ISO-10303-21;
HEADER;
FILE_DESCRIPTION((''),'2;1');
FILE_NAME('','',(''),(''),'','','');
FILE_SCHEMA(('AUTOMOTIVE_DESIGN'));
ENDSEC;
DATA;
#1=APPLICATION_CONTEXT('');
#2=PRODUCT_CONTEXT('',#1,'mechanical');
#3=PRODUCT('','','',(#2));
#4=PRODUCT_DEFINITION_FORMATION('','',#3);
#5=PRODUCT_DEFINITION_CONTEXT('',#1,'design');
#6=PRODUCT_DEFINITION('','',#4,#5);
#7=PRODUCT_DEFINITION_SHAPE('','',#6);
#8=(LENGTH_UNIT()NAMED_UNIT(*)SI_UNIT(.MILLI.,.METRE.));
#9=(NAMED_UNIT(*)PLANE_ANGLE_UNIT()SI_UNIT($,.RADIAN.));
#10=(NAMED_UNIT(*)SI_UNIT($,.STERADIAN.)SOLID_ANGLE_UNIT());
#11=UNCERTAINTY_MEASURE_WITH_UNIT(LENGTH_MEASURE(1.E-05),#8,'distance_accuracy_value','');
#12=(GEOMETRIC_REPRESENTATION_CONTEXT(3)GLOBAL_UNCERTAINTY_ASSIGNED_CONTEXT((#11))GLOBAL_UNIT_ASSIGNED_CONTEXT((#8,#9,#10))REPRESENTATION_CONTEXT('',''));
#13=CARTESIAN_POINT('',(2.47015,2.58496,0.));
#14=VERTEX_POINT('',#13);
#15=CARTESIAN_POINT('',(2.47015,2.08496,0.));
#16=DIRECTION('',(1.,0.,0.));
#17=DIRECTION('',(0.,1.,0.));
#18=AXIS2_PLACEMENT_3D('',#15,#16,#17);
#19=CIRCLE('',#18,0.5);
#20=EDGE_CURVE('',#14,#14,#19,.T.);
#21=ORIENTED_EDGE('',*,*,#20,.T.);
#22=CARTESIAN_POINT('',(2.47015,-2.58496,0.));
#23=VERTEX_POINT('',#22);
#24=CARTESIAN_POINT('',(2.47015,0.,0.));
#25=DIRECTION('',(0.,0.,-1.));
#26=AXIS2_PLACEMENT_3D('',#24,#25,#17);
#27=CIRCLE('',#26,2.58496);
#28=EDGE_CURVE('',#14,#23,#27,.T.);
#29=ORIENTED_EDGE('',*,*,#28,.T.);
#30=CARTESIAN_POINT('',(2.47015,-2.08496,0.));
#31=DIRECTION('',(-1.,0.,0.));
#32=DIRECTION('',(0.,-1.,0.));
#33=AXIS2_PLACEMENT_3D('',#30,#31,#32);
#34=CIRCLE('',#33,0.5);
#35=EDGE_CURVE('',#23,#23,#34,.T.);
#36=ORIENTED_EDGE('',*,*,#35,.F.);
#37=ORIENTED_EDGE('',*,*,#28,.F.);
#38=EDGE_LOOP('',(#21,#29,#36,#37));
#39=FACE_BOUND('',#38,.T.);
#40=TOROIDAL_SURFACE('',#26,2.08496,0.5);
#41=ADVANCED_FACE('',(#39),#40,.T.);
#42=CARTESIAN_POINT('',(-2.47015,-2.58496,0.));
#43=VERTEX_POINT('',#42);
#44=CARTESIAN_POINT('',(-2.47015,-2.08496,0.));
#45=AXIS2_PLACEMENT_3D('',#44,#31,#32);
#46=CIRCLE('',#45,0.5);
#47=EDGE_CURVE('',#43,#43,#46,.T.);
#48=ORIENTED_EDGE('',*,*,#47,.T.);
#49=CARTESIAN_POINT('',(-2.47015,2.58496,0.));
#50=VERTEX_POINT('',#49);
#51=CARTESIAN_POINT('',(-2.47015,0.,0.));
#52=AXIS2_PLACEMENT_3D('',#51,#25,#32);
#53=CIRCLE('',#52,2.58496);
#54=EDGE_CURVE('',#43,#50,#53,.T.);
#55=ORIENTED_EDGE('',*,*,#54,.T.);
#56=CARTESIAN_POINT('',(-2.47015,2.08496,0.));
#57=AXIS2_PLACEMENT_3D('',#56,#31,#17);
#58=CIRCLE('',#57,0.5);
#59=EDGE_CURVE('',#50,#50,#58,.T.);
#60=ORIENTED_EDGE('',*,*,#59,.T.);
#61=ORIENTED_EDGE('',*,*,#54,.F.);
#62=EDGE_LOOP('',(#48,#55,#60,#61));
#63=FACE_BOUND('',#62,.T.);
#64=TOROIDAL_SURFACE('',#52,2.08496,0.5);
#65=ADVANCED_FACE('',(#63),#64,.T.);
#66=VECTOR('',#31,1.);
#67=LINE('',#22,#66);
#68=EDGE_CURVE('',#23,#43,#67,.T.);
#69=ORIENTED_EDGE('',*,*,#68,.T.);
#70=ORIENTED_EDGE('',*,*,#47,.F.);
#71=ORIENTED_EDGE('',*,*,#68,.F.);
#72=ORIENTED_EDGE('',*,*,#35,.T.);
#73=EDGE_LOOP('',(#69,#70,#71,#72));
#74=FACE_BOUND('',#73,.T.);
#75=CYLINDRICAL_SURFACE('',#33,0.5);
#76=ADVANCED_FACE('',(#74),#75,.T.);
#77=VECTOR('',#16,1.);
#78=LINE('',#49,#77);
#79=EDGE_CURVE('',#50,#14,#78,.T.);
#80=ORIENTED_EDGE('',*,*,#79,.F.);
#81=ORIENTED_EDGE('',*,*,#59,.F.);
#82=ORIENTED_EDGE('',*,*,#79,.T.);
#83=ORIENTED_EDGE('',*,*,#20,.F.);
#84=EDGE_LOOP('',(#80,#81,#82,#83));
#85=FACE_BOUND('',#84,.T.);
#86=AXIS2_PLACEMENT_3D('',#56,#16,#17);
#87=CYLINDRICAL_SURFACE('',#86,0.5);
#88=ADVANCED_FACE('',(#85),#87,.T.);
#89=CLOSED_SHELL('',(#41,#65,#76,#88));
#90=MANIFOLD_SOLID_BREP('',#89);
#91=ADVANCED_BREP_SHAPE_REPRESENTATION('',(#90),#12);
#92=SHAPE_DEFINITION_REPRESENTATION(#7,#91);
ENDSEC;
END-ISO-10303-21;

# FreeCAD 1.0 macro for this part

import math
import FreeCAD as App
import Part
import Sketcher

doc = App.newDocument("Part")
body = doc.addObject("PartDesign::Body", "Body")

# Sketch on YZ plane
sketch1 = body.newObject("Sketcher::SketchObject", "Sketch")
sketch1.AttachmentSupport = (doc.getObject("YZ_Plane"), [""])
sketch1.MapMode = "FlatFace"
sketch1.AttachmentOffset = App.Placement(App.Vector(0, 0, -2.47015), App.Rotation())
sketch1.addGeometry(Part.Circle(App.Vector(2.1, 0, 0), App.Vector(0, 0, 1), 0.5), False)
sketch1.addConstraint([
    Sketcher.Constraint("PointOnObject", 0, 3, -1),
    Sketcher.Constraint("Diameter", 0, 1.0),
    Sketcher.Constraint("DistanceX", -1, 1, 0, 3, 2.08496),
])

# Sketch on XY plane
sketch2 = body.newObject("Sketcher::SketchObject", "Sketch001")
sketch2.AttachmentSupport = (doc.getObject("XY_Plane"), [""])
sketch2.MapMode = "FlatFace"
sketch2.addGeometry([
    Part.LineSegment(App.Vector(2.5, -2.1, 0), App.Vector(-2.5, -2.1, 0)),
    Part.ArcOfCircle(Part.Circle(App.Vector(-2.5, 0, 0), App.Vector(0, 0, 1), 2.1), math.radians(90), math.radians(270)),
    Part.LineSegment(App.Vector(-2.5, 2.1, 0), App.Vector(2.5, 2.1, 0)),
    Part.ArcOfCircle(Part.Circle(App.Vector(2.5, 0, 0), App.Vector(0, 0, 1), 2.1), math.radians(-90), math.radians(90)),
], False)
sketch2.addConstraint([
    Sketcher.Constraint("Tangent", 0, 2, 1, 2),
    Sketcher.Constraint("Tangent", 1, 1, 2, 1),
    Sketcher.Constraint("Tangent", 2, 2, 3, 2),
    Sketcher.Constraint("Tangent", 3, 1, 0, 1),
    Sketcher.Constraint("Horizontal", 0),
    Sketcher.Constraint("Horizontal", 2),
    Sketcher.Constraint("Symmetric", 1, 3, 3, 3, -1, 1),
    Sketcher.Constraint("Radius", 1, 2.08496),
    Sketcher.Constraint("DistanceX", 0, 2, 0, 1, 4.9403),
])
doc.recompute()

additivepipe = body.newObject("PartDesign::AdditivePipe", "AdditivePipe")
additivepipe.Profile = sketch1
additivepipe.Spine = (sketch2, ["Edge1", "Edge2", "Edge3", "Edge4"])

doc.recompute()
